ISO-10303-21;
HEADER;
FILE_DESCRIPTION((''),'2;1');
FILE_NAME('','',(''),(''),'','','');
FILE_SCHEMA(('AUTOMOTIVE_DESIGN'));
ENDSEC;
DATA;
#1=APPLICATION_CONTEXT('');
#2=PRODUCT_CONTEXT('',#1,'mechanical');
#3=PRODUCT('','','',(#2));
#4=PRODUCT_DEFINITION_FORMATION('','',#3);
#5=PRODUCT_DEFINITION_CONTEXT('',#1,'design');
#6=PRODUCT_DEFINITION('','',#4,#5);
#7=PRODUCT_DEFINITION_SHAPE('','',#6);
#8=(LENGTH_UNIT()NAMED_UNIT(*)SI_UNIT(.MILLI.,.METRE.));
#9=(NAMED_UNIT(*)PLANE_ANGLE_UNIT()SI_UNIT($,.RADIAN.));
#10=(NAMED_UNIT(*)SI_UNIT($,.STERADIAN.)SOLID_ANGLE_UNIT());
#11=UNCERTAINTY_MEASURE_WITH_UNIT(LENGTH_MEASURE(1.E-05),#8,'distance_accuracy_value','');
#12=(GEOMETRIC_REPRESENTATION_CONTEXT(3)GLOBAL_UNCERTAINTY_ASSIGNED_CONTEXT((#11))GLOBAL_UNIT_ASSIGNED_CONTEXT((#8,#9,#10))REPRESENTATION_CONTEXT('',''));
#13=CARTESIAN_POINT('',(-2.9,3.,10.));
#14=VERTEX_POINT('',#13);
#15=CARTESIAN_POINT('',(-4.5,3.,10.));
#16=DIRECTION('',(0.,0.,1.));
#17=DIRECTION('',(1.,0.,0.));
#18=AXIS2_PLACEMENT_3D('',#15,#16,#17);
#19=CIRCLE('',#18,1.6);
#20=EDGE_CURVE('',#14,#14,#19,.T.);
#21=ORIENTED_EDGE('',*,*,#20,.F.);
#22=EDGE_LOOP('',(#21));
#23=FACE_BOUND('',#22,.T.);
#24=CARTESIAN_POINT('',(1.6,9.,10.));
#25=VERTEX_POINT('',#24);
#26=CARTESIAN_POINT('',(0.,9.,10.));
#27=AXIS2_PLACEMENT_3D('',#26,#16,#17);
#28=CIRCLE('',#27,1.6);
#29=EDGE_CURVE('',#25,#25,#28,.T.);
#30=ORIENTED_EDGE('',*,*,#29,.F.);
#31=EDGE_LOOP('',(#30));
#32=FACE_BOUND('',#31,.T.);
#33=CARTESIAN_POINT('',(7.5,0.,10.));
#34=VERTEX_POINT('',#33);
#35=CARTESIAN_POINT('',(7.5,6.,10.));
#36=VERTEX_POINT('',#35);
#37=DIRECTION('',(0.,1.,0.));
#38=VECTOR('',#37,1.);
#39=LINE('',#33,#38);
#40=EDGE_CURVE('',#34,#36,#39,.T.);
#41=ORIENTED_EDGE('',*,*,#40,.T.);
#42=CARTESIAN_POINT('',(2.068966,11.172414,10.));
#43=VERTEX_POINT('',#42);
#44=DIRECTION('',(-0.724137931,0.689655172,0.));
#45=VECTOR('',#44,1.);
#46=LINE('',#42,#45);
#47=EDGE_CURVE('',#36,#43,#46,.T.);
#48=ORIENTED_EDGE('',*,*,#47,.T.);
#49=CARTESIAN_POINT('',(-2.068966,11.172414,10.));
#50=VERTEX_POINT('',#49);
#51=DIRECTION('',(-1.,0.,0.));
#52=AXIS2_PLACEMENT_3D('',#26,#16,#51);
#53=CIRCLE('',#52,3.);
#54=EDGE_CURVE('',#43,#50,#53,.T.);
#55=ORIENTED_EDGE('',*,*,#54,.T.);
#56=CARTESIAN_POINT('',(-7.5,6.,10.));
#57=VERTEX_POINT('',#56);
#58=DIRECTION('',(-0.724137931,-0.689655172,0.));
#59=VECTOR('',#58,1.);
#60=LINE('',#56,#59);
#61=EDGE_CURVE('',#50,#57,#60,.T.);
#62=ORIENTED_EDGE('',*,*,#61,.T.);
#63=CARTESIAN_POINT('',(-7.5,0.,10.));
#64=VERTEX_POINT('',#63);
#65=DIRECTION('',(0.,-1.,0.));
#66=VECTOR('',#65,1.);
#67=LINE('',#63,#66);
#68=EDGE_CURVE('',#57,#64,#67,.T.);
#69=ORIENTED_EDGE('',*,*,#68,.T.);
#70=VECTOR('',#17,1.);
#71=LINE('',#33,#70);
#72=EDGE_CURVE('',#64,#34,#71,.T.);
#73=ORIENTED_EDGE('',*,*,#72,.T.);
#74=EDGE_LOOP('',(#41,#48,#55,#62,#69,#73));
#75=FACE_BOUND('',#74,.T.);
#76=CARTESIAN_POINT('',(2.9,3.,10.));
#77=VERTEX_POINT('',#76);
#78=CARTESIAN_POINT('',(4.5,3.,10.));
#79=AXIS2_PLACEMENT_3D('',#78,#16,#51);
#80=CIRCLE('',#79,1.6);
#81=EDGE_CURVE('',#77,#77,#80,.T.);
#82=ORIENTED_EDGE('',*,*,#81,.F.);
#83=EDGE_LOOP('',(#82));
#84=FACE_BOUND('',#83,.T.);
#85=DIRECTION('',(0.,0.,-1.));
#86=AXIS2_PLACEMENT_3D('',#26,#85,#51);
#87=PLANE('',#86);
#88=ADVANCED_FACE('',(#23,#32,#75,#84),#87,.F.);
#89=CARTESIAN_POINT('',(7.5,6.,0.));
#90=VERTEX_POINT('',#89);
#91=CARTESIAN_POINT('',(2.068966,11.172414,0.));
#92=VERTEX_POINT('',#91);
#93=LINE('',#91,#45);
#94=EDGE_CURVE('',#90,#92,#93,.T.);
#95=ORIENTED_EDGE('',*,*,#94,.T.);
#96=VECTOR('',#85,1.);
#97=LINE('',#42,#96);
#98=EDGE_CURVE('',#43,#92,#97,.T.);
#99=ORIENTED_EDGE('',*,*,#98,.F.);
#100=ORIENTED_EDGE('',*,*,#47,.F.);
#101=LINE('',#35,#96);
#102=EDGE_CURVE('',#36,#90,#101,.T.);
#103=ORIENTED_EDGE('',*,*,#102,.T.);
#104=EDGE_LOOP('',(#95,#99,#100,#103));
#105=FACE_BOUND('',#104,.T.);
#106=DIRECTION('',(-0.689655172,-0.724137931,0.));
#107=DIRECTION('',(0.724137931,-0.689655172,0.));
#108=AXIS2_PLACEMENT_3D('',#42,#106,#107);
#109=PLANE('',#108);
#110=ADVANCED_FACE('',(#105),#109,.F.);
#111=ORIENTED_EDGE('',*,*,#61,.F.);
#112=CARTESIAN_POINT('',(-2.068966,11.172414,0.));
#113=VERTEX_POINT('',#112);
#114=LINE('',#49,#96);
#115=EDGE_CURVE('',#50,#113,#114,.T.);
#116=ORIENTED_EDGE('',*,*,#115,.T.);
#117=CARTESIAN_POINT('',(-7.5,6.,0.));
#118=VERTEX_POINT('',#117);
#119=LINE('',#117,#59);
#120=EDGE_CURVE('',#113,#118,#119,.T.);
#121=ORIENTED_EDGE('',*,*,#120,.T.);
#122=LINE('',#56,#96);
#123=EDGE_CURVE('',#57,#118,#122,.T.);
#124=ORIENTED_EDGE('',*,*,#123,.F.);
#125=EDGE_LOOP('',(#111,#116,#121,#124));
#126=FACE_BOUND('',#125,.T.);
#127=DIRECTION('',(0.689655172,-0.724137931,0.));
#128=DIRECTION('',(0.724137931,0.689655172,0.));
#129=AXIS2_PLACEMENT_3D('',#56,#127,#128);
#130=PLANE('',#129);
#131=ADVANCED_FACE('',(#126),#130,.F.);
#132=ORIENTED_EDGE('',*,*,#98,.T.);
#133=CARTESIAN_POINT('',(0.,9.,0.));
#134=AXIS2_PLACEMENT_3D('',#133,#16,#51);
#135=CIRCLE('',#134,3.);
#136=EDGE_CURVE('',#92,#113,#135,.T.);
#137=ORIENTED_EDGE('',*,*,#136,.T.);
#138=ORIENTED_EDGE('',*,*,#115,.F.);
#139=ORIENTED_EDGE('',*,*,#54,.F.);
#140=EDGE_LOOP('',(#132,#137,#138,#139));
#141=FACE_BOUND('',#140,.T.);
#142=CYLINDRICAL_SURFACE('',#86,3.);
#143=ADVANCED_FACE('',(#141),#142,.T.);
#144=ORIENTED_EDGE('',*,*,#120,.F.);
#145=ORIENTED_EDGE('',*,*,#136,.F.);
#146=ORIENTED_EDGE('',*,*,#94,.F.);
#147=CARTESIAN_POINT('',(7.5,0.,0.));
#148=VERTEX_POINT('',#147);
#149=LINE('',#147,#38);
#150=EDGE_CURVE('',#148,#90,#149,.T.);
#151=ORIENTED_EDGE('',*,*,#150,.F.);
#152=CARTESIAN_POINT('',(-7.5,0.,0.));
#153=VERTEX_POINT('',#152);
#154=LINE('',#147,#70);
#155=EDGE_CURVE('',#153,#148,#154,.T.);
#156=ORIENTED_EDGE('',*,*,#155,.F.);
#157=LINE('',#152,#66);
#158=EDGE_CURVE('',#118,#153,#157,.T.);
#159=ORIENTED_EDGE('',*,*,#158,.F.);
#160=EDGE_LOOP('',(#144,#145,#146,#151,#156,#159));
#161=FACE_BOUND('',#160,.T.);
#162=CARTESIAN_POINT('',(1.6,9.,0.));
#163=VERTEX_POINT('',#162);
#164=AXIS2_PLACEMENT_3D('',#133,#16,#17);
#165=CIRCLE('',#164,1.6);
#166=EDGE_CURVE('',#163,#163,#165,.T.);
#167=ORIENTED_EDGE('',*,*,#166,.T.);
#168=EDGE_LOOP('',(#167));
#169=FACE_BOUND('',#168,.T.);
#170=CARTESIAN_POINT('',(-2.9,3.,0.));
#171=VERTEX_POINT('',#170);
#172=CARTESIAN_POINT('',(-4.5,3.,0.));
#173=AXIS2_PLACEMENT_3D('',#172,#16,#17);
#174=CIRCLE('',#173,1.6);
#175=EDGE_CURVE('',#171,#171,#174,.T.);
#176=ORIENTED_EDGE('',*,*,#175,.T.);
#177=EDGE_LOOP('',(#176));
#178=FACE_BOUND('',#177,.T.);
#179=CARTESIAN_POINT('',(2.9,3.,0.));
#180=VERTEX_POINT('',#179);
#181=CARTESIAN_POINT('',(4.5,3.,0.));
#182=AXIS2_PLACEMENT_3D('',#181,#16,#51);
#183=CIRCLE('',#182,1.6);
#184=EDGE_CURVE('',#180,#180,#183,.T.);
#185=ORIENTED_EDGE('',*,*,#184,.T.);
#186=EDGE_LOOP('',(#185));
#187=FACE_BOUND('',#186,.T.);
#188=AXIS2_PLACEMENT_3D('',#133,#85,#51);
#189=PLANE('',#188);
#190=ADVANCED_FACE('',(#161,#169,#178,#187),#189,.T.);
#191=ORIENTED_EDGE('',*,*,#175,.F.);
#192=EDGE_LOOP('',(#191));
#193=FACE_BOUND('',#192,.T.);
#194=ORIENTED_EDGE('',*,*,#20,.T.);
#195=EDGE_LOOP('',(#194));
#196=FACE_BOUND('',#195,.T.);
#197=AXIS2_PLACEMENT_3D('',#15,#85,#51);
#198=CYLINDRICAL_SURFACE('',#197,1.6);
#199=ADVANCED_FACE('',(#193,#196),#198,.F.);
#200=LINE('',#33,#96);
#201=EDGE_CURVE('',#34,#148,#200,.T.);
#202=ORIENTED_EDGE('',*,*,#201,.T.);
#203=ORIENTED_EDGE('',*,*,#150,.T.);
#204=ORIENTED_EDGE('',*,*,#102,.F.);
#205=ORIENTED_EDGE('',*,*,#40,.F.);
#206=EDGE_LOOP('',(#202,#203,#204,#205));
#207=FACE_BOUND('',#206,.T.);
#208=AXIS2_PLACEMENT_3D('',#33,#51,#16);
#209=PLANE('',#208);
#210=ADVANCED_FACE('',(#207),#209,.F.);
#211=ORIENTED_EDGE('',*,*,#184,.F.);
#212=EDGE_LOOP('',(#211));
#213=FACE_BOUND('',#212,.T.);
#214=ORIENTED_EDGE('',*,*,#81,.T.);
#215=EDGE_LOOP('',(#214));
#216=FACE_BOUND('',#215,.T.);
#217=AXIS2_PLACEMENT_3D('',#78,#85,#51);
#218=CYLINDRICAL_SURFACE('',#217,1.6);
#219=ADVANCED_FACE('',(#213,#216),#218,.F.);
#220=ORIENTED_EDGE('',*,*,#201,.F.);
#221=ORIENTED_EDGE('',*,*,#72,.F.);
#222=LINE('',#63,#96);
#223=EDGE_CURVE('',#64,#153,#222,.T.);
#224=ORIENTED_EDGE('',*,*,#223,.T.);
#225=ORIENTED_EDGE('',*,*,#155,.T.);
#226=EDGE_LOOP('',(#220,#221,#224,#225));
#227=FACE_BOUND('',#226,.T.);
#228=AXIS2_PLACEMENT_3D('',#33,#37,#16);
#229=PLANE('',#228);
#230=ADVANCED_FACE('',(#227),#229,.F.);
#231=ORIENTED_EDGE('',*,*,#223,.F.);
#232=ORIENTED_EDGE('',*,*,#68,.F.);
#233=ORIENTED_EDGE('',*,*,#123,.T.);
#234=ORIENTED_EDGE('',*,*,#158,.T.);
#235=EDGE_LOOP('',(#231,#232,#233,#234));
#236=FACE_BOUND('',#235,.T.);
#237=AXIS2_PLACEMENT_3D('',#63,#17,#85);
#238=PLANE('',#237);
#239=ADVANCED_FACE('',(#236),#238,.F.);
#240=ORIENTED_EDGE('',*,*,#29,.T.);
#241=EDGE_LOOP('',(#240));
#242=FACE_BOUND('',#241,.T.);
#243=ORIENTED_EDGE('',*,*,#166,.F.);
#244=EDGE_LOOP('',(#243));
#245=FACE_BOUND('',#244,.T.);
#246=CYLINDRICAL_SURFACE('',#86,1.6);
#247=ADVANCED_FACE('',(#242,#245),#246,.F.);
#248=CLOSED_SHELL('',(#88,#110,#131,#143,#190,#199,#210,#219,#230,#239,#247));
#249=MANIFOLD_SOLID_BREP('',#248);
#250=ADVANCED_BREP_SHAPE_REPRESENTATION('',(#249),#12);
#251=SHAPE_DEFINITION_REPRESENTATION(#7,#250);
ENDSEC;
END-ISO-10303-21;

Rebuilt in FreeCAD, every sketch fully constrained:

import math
import FreeCAD as App
import Part
import Sketcher

V = App.Vector

doc = App.newDocument("Part")
body = doc.addObject("PartDesign::Body", "Body")

sketch1 = body.newObject("Sketcher::SketchObject", "Sketch")
sketch1.AttachmentSupport = (doc.getObject("XY_Plane"), [""])
sketch1.MapMode = "FlatFace"
sketch1.addGeometry(Part.LineSegment(V(-2.068966, 11.172414, 0), V(-7.5, 6, 0)), False)
sketch1.addGeometry(Part.LineSegment(V(-7.5, 6, 0), V(-7.5, 0, 0)), False)
sketch1.addGeometry(Part.LineSegment(V(-7.5, 0, 0), V(7.5, 0, 0)), False)
sketch1.addGeometry(Part.LineSegment(V(7.5, 0, 0), V(7.5, 6, 0)), False)
sketch1.addGeometry(Part.LineSegment(V(7.5, 6, 0), V(2.068966, 11.172414, 0)), False)
sketch1.addGeometry(Part.ArcOfCircle(Part.Circle(V(0, 9, 0), V(0, 0, 1), 3), math.radians(46.397181), math.radians(133.602819)), False)
sketch1.addGeometry(Part.Circle(V(4.5, 3, 0), V(0, 0, 1), 1.6), False)
sketch1.addGeometry(Part.Circle(V(-4.5, 3, 0), V(0, 0, 1), 1.6), False)
sketch1.addGeometry(Part.Circle(V(0, 9, 0), V(0, 0, 1), 1.6), False)
sketch1.addConstraint(Sketcher.Constraint("Coincident", 0, 2, 1, 1))
sketch1.addConstraint(Sketcher.Constraint("Coincident", 1, 2, 2, 1))
sketch1.addConstraint(Sketcher.Constraint("Coincident", 2, 2, 3, 1))
sketch1.addConstraint(Sketcher.Constraint("Coincident", 3, 2, 4, 1))
sketch1.addConstraint(Sketcher.Constraint("Tangent", 4, 2, 5, 1))
sketch1.addConstraint(Sketcher.Constraint("Tangent", 5, 2, 0, 1))
sketch1.addConstraint(Sketcher.Constraint("Vertical", 1))
sketch1.addConstraint(Sketcher.Constraint("Horizontal", 2))
sketch1.addConstraint(Sketcher.Constraint("Vertical", 3))
sketch1.addConstraint(Sketcher.Constraint("Coincident", 8, 3, 5, 3))
sketch1.addConstraint(Sketcher.Constraint("Equal", 6, 7))
sketch1.addConstraint(Sketcher.Constraint("Equal", 7, 8))
sketch1.addConstraint(Sketcher.Constraint("Symmetric", 1, 2, 2, 2, -1, 1))
sketch1.addConstraint(Sketcher.Constraint("Symmetric", 6, 3, 7, 3, -2))
sketch1.addConstraint(Sketcher.Constraint("Symmetric", 4, 2, 5, 2, -2))
sketch1.addConstraint(Sketcher.Constraint("Radius", 5, 3.0))
sketch1.addConstraint(Sketcher.Constraint("Diameter", 6, 3.2))
sketch1.addConstraint(Sketcher.Constraint("DistanceX", 2, 1, 2, 2, 15.0))
sketch1.addConstraint(Sketcher.Constraint("DistanceY", 1, 2, 1, 1, 6.0))
sketch1.addConstraint(Sketcher.Constraint("DistanceY", -1, 1, 5, 3, 9.0))
sketch1.addConstraint(Sketcher.Constraint("DistanceY", -1, 1, 6, 3, 3.0))
sketch1.addConstraint(Sketcher.Constraint("DistanceX", 7, 3, 6, 3, 9.0))
pad1 = body.newObject("PartDesign::Pad", "Pad")
pad1.Profile = sketch1
pad1.Length = 10

doc.recompute()
